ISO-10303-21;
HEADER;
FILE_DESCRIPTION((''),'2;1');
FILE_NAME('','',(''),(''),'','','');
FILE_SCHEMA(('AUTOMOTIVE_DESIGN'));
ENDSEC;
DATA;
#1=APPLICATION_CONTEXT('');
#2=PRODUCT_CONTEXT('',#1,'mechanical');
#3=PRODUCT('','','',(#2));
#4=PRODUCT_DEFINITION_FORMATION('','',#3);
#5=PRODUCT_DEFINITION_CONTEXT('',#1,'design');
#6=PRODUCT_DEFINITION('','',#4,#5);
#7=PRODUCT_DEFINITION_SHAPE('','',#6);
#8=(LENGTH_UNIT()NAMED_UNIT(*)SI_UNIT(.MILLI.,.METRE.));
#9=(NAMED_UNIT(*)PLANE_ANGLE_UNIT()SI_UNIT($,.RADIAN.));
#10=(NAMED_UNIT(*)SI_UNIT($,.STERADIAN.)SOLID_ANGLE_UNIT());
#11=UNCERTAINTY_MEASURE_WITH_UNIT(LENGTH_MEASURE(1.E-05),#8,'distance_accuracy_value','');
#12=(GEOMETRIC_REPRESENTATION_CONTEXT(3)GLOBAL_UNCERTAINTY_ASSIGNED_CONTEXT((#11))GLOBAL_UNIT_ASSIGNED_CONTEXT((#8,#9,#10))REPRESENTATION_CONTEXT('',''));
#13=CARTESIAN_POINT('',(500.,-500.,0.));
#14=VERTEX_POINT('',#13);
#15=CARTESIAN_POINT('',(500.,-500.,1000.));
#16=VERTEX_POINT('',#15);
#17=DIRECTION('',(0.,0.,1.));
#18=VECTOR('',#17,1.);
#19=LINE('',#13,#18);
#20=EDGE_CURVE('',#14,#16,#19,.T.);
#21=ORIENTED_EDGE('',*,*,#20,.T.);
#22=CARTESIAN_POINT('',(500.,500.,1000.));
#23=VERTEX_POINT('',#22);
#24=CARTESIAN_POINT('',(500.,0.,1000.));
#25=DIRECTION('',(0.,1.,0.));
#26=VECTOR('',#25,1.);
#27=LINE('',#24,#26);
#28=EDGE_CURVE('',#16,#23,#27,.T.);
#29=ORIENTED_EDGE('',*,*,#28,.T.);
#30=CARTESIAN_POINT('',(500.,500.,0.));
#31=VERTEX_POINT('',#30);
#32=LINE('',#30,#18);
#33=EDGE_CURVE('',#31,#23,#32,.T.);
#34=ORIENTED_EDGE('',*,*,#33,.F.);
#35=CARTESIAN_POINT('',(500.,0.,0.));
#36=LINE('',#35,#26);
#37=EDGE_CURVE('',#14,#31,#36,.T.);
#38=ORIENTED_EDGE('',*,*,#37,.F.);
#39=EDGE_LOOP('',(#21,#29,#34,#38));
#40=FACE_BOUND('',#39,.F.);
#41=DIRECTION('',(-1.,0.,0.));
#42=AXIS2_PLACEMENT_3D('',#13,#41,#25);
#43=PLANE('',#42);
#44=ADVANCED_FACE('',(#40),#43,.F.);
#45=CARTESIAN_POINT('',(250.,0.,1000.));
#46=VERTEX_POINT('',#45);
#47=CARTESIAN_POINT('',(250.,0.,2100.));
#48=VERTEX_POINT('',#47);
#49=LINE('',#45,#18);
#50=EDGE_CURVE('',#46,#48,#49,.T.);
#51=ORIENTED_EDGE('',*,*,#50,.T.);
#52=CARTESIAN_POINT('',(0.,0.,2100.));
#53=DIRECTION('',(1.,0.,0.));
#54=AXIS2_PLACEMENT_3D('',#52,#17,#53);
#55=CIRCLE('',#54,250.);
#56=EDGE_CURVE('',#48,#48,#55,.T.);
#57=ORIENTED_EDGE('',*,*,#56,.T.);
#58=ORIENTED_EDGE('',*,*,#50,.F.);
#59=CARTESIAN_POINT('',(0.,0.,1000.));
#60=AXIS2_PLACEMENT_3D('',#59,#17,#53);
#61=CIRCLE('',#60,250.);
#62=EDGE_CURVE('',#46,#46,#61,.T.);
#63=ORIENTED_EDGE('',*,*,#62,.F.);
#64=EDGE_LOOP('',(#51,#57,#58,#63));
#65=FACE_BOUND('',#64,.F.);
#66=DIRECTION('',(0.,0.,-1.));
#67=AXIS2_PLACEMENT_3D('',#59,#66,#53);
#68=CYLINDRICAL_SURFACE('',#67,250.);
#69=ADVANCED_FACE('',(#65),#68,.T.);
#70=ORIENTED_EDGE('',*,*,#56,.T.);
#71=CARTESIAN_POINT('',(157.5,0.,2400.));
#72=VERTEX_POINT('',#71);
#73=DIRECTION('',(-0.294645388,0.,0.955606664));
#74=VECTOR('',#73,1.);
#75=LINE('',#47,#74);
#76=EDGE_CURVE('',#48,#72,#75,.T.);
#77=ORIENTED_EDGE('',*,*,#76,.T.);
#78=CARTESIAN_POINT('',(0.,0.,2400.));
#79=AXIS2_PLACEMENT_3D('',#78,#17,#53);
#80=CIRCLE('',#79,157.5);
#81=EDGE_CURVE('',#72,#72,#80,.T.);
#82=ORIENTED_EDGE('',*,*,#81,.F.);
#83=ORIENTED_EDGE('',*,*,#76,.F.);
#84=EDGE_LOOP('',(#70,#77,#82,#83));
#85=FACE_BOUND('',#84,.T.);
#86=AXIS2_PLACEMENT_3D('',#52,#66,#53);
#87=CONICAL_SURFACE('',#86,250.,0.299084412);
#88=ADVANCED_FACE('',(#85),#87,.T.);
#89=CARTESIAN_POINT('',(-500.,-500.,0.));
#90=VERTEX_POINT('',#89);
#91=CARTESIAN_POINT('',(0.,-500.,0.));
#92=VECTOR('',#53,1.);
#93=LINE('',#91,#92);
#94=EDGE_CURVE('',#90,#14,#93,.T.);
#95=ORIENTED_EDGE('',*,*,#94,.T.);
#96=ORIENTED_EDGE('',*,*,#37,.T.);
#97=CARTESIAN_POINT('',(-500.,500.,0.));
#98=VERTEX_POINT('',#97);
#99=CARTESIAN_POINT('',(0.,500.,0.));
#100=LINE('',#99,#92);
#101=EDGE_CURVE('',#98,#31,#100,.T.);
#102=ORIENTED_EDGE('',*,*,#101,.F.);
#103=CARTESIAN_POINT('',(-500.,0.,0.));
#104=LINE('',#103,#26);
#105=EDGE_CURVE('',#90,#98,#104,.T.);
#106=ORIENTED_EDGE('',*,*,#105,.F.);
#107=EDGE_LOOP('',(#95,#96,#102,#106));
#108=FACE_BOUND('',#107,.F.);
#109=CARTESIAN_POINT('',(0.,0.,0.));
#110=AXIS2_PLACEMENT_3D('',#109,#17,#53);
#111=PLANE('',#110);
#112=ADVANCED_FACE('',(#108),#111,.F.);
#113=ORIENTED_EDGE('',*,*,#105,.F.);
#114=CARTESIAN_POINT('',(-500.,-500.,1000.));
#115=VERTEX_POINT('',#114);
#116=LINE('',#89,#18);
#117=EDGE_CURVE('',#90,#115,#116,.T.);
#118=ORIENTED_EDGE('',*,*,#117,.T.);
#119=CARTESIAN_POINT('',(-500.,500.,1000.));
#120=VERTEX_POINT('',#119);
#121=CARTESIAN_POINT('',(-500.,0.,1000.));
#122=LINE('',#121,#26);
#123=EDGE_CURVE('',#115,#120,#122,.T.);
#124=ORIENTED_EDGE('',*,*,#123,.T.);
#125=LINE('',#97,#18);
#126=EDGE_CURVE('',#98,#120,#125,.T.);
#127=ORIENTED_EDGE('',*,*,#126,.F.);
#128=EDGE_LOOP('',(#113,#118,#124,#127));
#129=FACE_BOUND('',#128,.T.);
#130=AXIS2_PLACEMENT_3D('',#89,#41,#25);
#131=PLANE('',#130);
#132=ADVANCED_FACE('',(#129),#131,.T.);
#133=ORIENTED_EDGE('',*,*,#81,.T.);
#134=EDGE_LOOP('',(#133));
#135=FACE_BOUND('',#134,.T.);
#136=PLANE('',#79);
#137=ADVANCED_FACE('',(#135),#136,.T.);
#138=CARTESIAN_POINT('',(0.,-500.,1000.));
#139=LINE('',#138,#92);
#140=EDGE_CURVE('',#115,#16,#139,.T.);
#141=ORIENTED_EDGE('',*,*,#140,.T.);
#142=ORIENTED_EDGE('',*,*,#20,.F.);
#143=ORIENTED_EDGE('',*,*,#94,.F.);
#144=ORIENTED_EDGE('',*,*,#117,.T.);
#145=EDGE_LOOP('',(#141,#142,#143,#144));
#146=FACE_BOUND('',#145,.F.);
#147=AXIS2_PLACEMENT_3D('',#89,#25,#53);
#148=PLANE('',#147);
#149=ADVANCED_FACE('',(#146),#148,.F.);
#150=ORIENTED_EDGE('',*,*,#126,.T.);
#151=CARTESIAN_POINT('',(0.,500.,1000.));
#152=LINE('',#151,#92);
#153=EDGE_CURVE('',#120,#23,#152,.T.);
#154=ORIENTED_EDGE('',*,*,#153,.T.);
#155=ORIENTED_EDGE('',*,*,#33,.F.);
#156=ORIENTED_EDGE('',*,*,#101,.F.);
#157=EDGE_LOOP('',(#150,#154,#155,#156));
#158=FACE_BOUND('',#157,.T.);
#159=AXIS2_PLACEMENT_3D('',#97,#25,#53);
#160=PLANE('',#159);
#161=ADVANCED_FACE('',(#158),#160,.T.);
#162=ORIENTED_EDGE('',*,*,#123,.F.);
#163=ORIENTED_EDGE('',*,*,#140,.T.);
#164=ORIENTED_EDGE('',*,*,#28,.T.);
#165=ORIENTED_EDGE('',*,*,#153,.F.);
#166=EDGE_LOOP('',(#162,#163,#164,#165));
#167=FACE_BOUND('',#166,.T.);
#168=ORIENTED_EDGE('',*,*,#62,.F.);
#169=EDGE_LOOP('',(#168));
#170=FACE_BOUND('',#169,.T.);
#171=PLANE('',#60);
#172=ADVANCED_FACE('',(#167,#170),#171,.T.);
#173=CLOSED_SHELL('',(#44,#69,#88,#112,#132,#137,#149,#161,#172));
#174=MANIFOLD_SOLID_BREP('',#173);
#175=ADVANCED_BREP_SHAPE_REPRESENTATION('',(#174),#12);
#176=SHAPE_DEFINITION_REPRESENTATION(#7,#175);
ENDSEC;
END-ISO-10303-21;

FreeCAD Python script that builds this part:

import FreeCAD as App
import Part
import Sketcher
from FreeCAD import Vector


def add_polygon(sketch, points):
    """Adds a closed chain of lines whose ends are joined by coincident constraints."""
    first, n = sketch.GeometryCount, len(points)
    for a, b in zip(points, points[1:] + points[:1]):
        sketch.addGeometry(Part.LineSegment(App.Vector(*a, 0), App.Vector(*b, 0)), False)
    for i in range(n):
        sketch.addConstraint(Sketcher.Constraint("Coincident", first + i, 2, first + (i + 1) % n, 1))

doc = App.newDocument("Part")
body = doc.addObject("PartDesign::Body", "Body")

# Sketch on XY plane
sketch1 = body.newObject("Sketcher::SketchObject", "Sketch")
sketch1.AttachmentSupport = (doc.getObject("XY_Plane"), [""])
sketch1.MapMode = "FlatFace"
add_polygon(sketch1, [(-500, 500), (-500, -500), (500, -500), (500, 500)])  # lines 0-3
sketch1.addConstraint([
    Sketcher.Constraint("Vertical", 0),
    Sketcher.Constraint("Horizontal", 1),
    Sketcher.Constraint("Vertical", 2),
    Sketcher.Constraint("Horizontal", 3),
    Sketcher.Constraint("Symmetric", 0, 2, 2, 2, -1, 1),
    Sketcher.Constraint("Equal", 3, 0),
    Sketcher.Constraint("DistanceX", 1, 1, 1, 2, 1000.0),
])
pad1 = body.newObject("PartDesign::Pad", "Pad")
pad1.Profile = sketch1
pad1.Length = 1000

# Sketch on XY plane
sketch2 = body.newObject("Sketcher::SketchObject", "Sketch001")
sketch2.AttachmentSupport = (doc.getObject("XY_Plane"), [""])
sketch2.MapMode = "FlatFace"
sketch2.AttachmentOffset = App.Placement(Vector(0, 0, 1000), App.Rotation())
sketch2.addGeometry(Part.Circle(Vector(0, 0, 0), Vector(0, 0, 1), 158), False)
sketch2.addConstraint([
    Sketcher.Constraint("Coincident", 0, 3, -1, 1),
    Sketcher.Constraint("Diameter", 0, 315.0),
])
pad2 = body.newObject("PartDesign::Pad", "Pad001")
pad2.Profile = sketch2
pad2.Length = 1300

# Sketch on XY plane
sketch3 = body.newObject("Sketcher::SketchObject", "Sketch002")
sketch3.AttachmentSupport = (doc.getObject("XY_Plane"), [""])
sketch3.MapMode = "FlatFace"
sketch3.AttachmentOffset = App.Placement(Vector(0, 0, 1000), App.Rotation())
sketch3.addGeometry(Part.Circle(Vector(0, 0, 0), Vector(0, 0, 1), 250), False)
sketch3.addConstraint([
    Sketcher.Constraint("Coincident", 0, 3, -1, 1),
    Sketcher.Constraint("Diameter", 0, 500.0),
])
pad3 = body.newObject("PartDesign::Pad", "Pad002")
pad3.Profile = sketch3
pad3.Length = 1100

# Sketch on XZ plane
sketch4 = body.newObject("Sketcher::SketchObject", "Sketch003")
sketch4.AttachmentSupport = (doc.getObject("XZ_Plane"), [""])
sketch4.MapMode = "FlatFace"
add_polygon(sketch4, [(0, 2100), (250, 2100), (158, 2400), (0, 2400)])  # lines 0-3
sketch4.addConstraint([
    Sketcher.Constraint("Horizontal", 0),
    Sketcher.Constraint("Horizontal", 2),
    Sketcher.Constraint("Vertical", 3),
    Sketcher.Constraint("PointOnObject", 2, 2, -2),
    Sketcher.Constraint("DistanceX", 0, 1, 0, 2, 250.0),
    Sketcher.Constraint("DistanceY", 3, 2, 3, 1, 300.0),
    Sketcher.Constraint("DistanceX", 2, 2, 2, 1, 157.5),
    Sketcher.Constraint("DistanceY", -1, 1, 0, 2, 2100.0),
])
revolution = body.newObject("PartDesign::Revolution", "Revolution")
revolution.Profile = sketch4
revolution.ReferenceAxis = (sketch4, ["V_Axis"])
revolution.Angle = 360

doc.recompute()
